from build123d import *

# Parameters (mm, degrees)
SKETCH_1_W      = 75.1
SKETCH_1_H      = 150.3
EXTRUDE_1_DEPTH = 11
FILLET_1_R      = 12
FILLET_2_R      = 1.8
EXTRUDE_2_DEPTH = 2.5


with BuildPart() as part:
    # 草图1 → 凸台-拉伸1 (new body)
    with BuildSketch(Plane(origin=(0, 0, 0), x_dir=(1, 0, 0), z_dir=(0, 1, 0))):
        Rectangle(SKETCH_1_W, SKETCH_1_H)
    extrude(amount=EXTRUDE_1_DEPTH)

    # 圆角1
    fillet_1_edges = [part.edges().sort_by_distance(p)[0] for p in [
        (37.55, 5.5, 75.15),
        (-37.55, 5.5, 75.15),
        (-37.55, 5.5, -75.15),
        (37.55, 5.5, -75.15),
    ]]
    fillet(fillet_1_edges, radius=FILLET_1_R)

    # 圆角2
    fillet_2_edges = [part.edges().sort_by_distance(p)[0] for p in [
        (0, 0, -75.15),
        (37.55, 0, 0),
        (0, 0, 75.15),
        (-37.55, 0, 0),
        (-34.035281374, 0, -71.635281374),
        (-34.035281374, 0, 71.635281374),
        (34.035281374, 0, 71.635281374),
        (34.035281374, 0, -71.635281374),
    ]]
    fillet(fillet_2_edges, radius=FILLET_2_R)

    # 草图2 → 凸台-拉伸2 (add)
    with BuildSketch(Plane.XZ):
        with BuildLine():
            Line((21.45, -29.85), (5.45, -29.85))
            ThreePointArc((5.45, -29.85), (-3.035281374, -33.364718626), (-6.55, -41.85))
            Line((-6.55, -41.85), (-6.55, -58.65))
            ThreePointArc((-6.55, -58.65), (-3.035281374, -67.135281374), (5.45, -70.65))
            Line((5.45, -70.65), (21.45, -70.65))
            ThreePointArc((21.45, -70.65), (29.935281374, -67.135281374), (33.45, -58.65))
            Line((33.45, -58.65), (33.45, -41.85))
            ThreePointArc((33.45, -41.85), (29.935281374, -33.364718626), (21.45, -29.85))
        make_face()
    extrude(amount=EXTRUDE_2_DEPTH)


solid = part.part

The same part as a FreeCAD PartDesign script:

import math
import FreeCAD as App
import Part
import Sketcher
Q = App.Units.Quantity


def edges_at(feature, points):
    """Names of the edges that pass closest to the given points."""
    edges = feature.Shape.Edges
    near = lambda p: min(range(len(edges)), key=lambda i: edges[i].distToShape(Part.Vertex(*p))[0])
    return sorted({f"Edge{near(p) + 1}" for p in points})

doc = App.newDocument("Part")
body = doc.addObject("PartDesign::Body", "Body")

sketch1 = body.newObject("Sketcher::SketchObject", "Sketch")
sketch1.AttachmentSupport = (doc.getObject("XZ_Plane"), [""])
sketch1.MapMode = "FlatFace"
sketch1.addGeometry(Part.LineSegment(App.Vector(-38, -75, 0), App.Vector(-38, 75, 0)), False)
sketch1.addGeometry(Part.LineSegment(App.Vector(-38, 75, 0), App.Vector(38, 75, 0)), False)
sketch1.addGeometry(Part.LineSegment(App.Vector(38, 75, 0), App.Vector(38, -75, 0)), False)
sketch1.addGeometry(Part.LineSegment(App.Vector(38, -75, 0), App.Vector(-38, -75, 0)), False)
sketch1.addConstraint(Sketcher.Constraint("Coincident", 0, 2, 1, 1))
sketch1.addConstraint(Sketcher.Constraint("Coincident", 1, 2, 2, 1))
sketch1.addConstraint(Sketcher.Constraint("Coincident", 2, 2, 3, 1))
sketch1.addConstraint(Sketcher.Constraint("Coincident", 3, 2, 0, 1))
sketch1.addConstraint(Sketcher.Constraint("Vertical", 0))
sketch1.addConstraint(Sketcher.Constraint("Horizontal", 1))
sketch1.addConstraint(Sketcher.Constraint("Vertical", 2))
sketch1.addConstraint(Sketcher.Constraint("Horizontal", 3))
sketch1.addConstraint(Sketcher.Constraint("Symmetric", 0, 2, 2, 2, -1, 1))
sketch1.addConstraint(Sketcher.Constraint("DistanceX", 1, 1, 1, 2, Q("75.1 mm")))
sketch1.addConstraint(Sketcher.Constraint("DistanceY", 0, 1, 0, 2, Q("150.3 mm")))
pad1 = body.newObject("PartDesign::Pad", "Pad")
pad1.Profile = sketch1
pad1.Length = 11
pad1.Reversed = True
doc.recompute()

fillet = body.newObject("PartDesign::Fillet", "Fillet")
fillet.Base = (pad1, edges_at(pad1, [
    (37.55, 5.5, 75.15),
    (-37.55, 5.5, 75.15),
    (-37.55, 5.5, -75.15),
    (37.55, 5.5, -75.15),
]))
fillet.Radius = 12
doc.recompute()

fillet2 = body.newObject("PartDesign::Fillet", "Fillet001")
fillet2.Base = (fillet, edges_at(fillet, [
    (0, 0, -75.15),
    (37.55, 0, 0),
    (0, 0, 75.15),
    (-37.55, 0, 0),
    (-34.035, 0, -71.635),
    (-34.035, 0, 71.635),
    (34.035, 0, 71.635),
    (34.035, 0, -71.635),
]))
fillet2.Radius = 1.8

sketch2 = body.newObject("Sketcher::SketchObject", "Sketch001")
sketch2.AttachmentSupport = (doc.getObject("XZ_Plane"), [""])
sketch2.MapMode = "FlatFace"
sketch2.addGeometry(Part.LineSegment(App.Vector(21, -30, 0), App.Vector(5, -30, 0)), False)
sketch2.addGeometry(Part.ArcOfCircle(Part.Circle(App.Vector(5, -42, 0), App.Vector(0, 0, 1), 12), math.radians(90), math.radians(180)), False)
sketch2.addGeometry(Part.LineSegment(App.Vector(-7, -42, 0), App.Vector(-7, -59, 0)), False)
sketch2.addGeometry(Part.ArcOfCircle(Part.Circle(App.Vector(5, -59, 0), App.Vector(0, 0, 1), 12), math.radians(-180), math.radians(-90)), False)
sketch2.addGeometry(Part.LineSegment(App.Vector(5, -71, 0), App.Vector(21, -71, 0)), False)
sketch2.addGeometry(Part.ArcOfCircle(Part.Circle(App.Vector(21, -59, 0), App.Vector(0, 0, 1), 12), math.radians(-90), math.radians(0)), False)
sketch2.addGeometry(Part.LineSegment(App.Vector(33, -59, 0), App.Vector(33, -42, 0)), False)
sketch2.addGeometry(Part.ArcOfCircle(Part.Circle(App.Vector(21, -42, 0), App.Vector(0, 0, 1), 12), math.radians(0), math.radians(90)), False)
sketch2.addConstraint(Sketcher.Constraint("Tangent", 0, 2, 1, 1))
sketch2.addConstraint(Sketcher.Constraint("Tangent", 1, 2, 2, 1))
sketch2.addConstraint(Sketcher.Constraint("Tangent", 2, 2, 3, 1))
sketch2.addConstraint(Sketcher.Constraint("Tangent", 3, 2, 4, 1))
sketch2.addConstraint(Sketcher.Constraint("Tangent", 4, 2, 5, 1))
sketch2.addConstraint(Sketcher.Constraint("Tangent", 5, 2, 6, 1))
sketch2.addConstraint(Sketcher.Constraint("Tangent", 6, 2, 7, 1))
sketch2.addConstraint(Sketcher.Constraint("Tangent", 7, 2, 0, 1))
sketch2.addConstraint(Sketcher.Constraint("Horizontal", 0))
sketch2.addConstraint(Sketcher.Constraint("Vertical", 2))
sketch2.addConstraint(Sketcher.Constraint("Horizontal", 4))
sketch2.addConstraint(Sketcher.Constraint("Vertical", 6))
sketch2.addConstraint(Sketcher.Constraint("Equal", 1, 3))
sketch2.addConstraint(Sketcher.Constraint("Equal", 3, 5))
sketch2.addConstraint(Sketcher.Constraint("Equal", 5, 7))
sketch2.addConstraint(Sketcher.Constraint("Radius", 1, Q("12 mm")))
sketch2.addConstraint(Sketcher.Constraint("DistanceX", 0, 2, 0, 1, Q("16 mm")))
sketch2.addConstraint(Sketcher.Constraint("DistanceY", 2, 2, 2, 1, Q("16.8 mm")))
sketch2.addConstraint(Sketcher.Constraint("DistanceX", -1, 1, 1, 3, Q("5.45 mm")))
sketch2.addConstraint(Sketcher.Constraint("DistanceY", 1, 3, -1, 1, Q("41.85 mm")))
pad2 = body.newObject("PartDesign::Pad", "Pad001")
pad2.Profile = sketch2
pad2.Length = 2.5

doc.recompute()
